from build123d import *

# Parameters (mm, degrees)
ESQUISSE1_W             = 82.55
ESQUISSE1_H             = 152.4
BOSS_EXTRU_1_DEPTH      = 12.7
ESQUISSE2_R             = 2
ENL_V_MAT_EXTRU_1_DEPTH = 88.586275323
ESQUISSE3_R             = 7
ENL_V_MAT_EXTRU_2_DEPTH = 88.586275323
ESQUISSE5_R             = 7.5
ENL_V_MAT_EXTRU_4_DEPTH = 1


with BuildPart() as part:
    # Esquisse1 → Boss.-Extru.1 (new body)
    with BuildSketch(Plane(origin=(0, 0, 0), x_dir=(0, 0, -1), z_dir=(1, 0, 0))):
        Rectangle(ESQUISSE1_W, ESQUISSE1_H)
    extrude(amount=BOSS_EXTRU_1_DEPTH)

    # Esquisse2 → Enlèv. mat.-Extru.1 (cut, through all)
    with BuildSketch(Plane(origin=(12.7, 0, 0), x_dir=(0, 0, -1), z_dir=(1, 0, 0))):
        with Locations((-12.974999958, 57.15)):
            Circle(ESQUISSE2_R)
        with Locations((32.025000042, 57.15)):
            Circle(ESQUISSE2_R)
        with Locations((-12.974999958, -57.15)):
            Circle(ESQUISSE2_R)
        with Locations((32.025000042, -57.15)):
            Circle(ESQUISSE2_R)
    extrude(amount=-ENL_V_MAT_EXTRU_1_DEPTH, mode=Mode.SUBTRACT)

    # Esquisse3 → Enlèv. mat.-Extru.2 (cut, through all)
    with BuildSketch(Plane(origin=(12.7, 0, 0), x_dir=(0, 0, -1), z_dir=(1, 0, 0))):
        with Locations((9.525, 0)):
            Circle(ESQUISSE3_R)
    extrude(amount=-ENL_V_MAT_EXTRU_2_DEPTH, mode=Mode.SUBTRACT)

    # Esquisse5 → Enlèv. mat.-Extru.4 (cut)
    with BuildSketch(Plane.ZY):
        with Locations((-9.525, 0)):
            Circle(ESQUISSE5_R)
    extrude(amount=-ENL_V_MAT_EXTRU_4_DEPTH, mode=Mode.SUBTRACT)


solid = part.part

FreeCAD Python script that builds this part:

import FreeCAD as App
import Part
import Sketcher

V = App.Vector
Q = App.Units.Quantity


def add_polygon(sketch, points):
    """Adds a closed chain of lines whose ends are joined by coincident constraints."""
    first, n = sketch.GeometryCount, len(points)
    for a, b in zip(points, points[1:] + points[:1]):
        sketch.addGeometry(Part.LineSegment(App.Vector(*a, 0), App.Vector(*b, 0)), False)
    for i in range(n):
        sketch.addConstraint(Sketcher.Constraint("Coincident", first + i, 2, first + (i + 1) % n, 1))

doc = App.newDocument("Part")
body = doc.addObject("PartDesign::Body", "Body")

sketch1 = body.newObject("Sketcher::SketchObject", "Sketch")
sketch1.AttachmentSupport = (doc.getObject("YZ_Plane"), [""])
sketch1.MapMode = "FlatFace"
add_polygon(sketch1, [(76, 41), (-76, 41), (-76, -41), (76, -41)])
sketch1.addConstraint([
    Sketcher.Constraint("Horizontal", 0),
    Sketcher.Constraint("Vertical", 1),
    Sketcher.Constraint("Horizontal", 2),
    Sketcher.Constraint("Vertical", 3),
    Sketcher.Constraint("Symmetric", 0, 2, 2, 2, -1, 1),
    Sketcher.Constraint("DistanceX", 0, 2, 0, 1, Q("152.4 mm")),
    Sketcher.Constraint("DistanceY", 1, 2, 1, 1, Q("82.55 mm")),
])
pad1 = body.newObject("PartDesign::Pad", "Pad")
pad1.Profile = sketch1
pad1.Length = 12.7

sketch2 = body.newObject("Sketcher::SketchObject", "Sketch001")
sketch2.AttachmentSupport = (doc.getObject("YZ_Plane"), [""])
sketch2.MapMode = "FlatFace"
sketch2.AttachmentOffset = App.Placement(V(0, 0, 12.7), App.Rotation())
sketch2.addGeometry([
    Part.Circle(V(57.1, 13, 0), V(0, 0, 1), 2),
    Part.Circle(V(57.1, -32, 0), V(0, 0, 1), 2),
    Part.Circle(V(-57.1, 13, 0), V(0, 0, 1), 2),
    Part.Circle(V(-57.1, -32, 0), V(0, 0, 1), 2),
], False)
sketch2.addConstraint([
    Sketcher.Constraint("Equal", 0, 1),
    Sketcher.Constraint("Equal", 1, 2),
    Sketcher.Constraint("Equal", 2, 3),
    Sketcher.Constraint("Symmetric", 0, 3, 2, 3, -2),
    Sketcher.Constraint("Symmetric", 1, 3, 3, 3, -2),
    Sketcher.Constraint("Vertical", 0, 3, 1, 3),
    Sketcher.Constraint("Diameter", 0, Q("4 mm")),
    Sketcher.Constraint("DistanceY", 1, 3, 0, 3, Q("45 mm")),
    Sketcher.Constraint("DistanceX", 2, 3, 0, 3, Q("114.3 mm")),
    Sketcher.Constraint("DistanceY", -1, 1, 0, 3, Q("12.975 mm")),
])
pocket1 = body.newObject("PartDesign::Pocket", "Pocket")
pocket1.Profile = sketch2
pocket1.Type = "ThroughAll"

sketch3 = body.newObject("Sketcher::SketchObject", "Sketch002")
sketch3.AttachmentSupport = (doc.getObject("YZ_Plane"), [""])
sketch3.MapMode = "FlatFace"
sketch3.AttachmentOffset = App.Placement(V(0, 0, 12.7), App.Rotation())
sketch3.addGeometry(Part.Circle(V(0, -10, 0), V(0, 0, 1), 7), False)
sketch3.addConstraint([
    Sketcher.Constraint("PointOnObject", 0, 3, -2),
    Sketcher.Constraint("Diameter", 0, Q("14 mm")),
    Sketcher.Constraint("DistanceY", 0, 3, -1, 1, Q("9.525 mm")),
])
pocket2 = body.newObject("PartDesign::Pocket", "Pocket001")
pocket2.Profile = sketch3
pocket2.Type = "ThroughAll"

sketch4 = body.newObject("Sketcher::SketchObject", "Sketch003")
sketch4.AttachmentSupport = (doc.getObject("YZ_Plane"), [""])
sketch4.MapMode = "FlatFace"
sketch4.addGeometry(Part.Circle(V(0, -10, 0), V(0, 0, 1), 8), False)
sketch4.addConstraint([
    Sketcher.Constraint("PointOnObject", 0, 3, -2),
    Sketcher.Constraint("Diameter", 0, Q("15 mm")),
    Sketcher.Constraint("DistanceY", 0, 3, -1, 1, Q("9.525 mm")),
])
pocket3 = body.newObject("PartDesign::Pocket", "Pocket002")
pocket3.Profile = sketch4
pocket3.Length = 1
pocket3.Reversed = True

doc.recompute()
